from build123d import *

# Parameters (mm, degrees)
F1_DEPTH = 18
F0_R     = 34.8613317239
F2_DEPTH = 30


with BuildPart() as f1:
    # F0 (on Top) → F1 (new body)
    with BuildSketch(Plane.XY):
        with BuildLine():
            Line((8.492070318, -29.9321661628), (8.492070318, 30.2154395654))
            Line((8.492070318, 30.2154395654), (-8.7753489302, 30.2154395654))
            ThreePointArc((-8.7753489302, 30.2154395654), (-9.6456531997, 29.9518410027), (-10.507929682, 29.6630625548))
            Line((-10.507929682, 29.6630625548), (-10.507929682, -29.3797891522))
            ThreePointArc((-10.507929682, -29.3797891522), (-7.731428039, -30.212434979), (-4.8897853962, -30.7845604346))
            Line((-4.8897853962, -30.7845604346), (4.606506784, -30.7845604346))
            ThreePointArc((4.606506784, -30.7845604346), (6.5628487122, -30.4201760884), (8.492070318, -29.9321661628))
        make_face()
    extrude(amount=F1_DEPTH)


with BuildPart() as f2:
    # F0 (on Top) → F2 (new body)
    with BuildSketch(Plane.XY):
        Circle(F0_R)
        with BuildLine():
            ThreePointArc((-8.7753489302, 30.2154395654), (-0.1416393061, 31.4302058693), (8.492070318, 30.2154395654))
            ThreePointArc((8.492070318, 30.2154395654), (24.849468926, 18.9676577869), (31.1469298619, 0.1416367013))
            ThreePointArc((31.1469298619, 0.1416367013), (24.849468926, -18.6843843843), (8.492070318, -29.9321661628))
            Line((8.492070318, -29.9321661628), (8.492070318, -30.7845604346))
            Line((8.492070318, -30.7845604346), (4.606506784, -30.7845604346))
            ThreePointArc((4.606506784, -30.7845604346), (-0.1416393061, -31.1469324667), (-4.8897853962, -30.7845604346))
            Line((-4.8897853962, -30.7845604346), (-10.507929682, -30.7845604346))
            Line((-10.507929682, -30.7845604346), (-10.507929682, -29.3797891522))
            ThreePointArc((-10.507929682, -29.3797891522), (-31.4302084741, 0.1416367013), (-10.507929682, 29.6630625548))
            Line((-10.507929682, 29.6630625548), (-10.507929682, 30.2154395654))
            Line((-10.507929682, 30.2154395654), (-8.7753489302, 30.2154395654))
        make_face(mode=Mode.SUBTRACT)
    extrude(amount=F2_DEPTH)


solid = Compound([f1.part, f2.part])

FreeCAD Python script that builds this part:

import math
import FreeCAD as App
import Part
import Sketcher

V = App.Vector

doc = App.newDocument("Part")
body = doc.addObject("PartDesign::Body", "Body")

# Sketch on XY plane
sketch1 = body.newObject("Sketcher::SketchObject", "Sketch")
sketch1.AttachmentSupport = (doc.getObject("XY_Plane"), [""])
sketch1.MapMode = "FlatFace"
sketch1.addGeometry([
    Part.LineSegment(V(8.5, -29.9, 0), V(8.5, 30.2, 0)),  # 0
    Part.LineSegment(V(8.5, 30.2, 0), V(-8.8, 30.2, 0)),  # 1
    Part.ArcOfCircle(Part.Circle(V(-0.1, 0.1, 0), V(0, 0, 1), 31.3), math.radians(106.02), math.radians(109.35)),  # 2
    Part.LineSegment(V(-10.5, 29.7, 0), V(-10.5, -29.4, 0)),  # 3
    Part.ArcOfCircle(Part.Circle(V(-0.1, 0.1, 0), V(0, 0, 1), 31.3), math.radians(-109.35), math.radians(-98.73)),  # 4
    Part.LineSegment(V(-4.9, -30.8, 0), V(4.6, -30.8, 0)),  # 5
    Part.ArcOfCircle(Part.Circle(V(-0.1, 0.1, 0), V(0, 0, 1), 31.3), math.radians(-81.27), math.radians(-73.98)),  # 6
], False)
sketch1.addConstraint([
    Sketcher.Constraint("Coincident", 0, 2, 1, 1),
    Sketcher.Constraint("Coincident", 1, 2, 2, 1),
    Sketcher.Constraint("Coincident", 2, 2, 3, 1),
    Sketcher.Constraint("Coincident", 3, 2, 4, 1),
    Sketcher.Constraint("Coincident", 4, 2, 5, 1),
    Sketcher.Constraint("Coincident", 5, 2, 6, 1),
    Sketcher.Constraint("Coincident", 6, 2, 0, 1),
    Sketcher.Constraint("Vertical", 0),
    Sketcher.Constraint("Horizontal", 1),
    Sketcher.Constraint("Vertical", 3),
    Sketcher.Constraint("Horizontal", 5),
    Sketcher.Constraint("Coincident", 4, 3, 2, 3),
    Sketcher.Constraint("Coincident", 6, 3, 2, 3),
    Sketcher.Constraint("Equal", 2, 4),
    Sketcher.Constraint("Equal", 4, 6),
    Sketcher.Constraint("DistanceX", 2, 2, 0, 2, 19.0),
    Sketcher.Constraint("Radius", 2, 31.288569),
    Sketcher.Constraint("DistanceX", 1, 2, 1, 1, 17.267419),
    Sketcher.Constraint("DistanceY", 3, 2, 3, 1, 59.042852),
    Sketcher.Constraint("DistanceX", 5, 1, 5, 2, 9.496292),
    Sketcher.Constraint("DistanceX", 2, 3, -1, 1, 0.141639),
    Sketcher.Constraint("DistanceY", -1, 1, 0, 2, 30.21544),
])
pad1 = body.newObject("PartDesign::Pad", "Pad")
pad1.Profile = sketch1
pad1.Length = 18
body2 = doc.addObject("PartDesign::Body", "Body001")

# Sketch on XY plane
sketch2 = body2.newObject("Sketcher::SketchObject", "Sketch001")
sketch2.AttachmentSupport = (doc.getObject("XY_Plane001"), [""])
sketch2.MapMode = "FlatFace"
sketch2.addGeometry([
    Part.Circle(V(0, 0, 0), V(0, 0, 1), 34.9),  # 0
    Part.LineSegment(V(-10.5, 30.2, 0), V(-8.8, 30.2, 0)),  # 1
    Part.ArcOfCircle(Part.Circle(V(-0.1, 0.1, 0), V(0, 0, 1), 31.3), math.radians(74), math.radians(106)),  # 2
    Part.ArcOfCircle(Part.Circle(V(-0.1, 0.1, 0), V(0, 0, 1), 31.3), math.radians(0), math.radians(74)),  # 3
    Part.ArcOfCircle(Part.Circle(V(-0.1, 0.1, 0), V(0, 0, 1), 31.3), math.radians(-74), math.radians(0)),  # 4
    Part.LineSegment(V(8.5, -29.9, 0), V(8.5, -30.8, 0)),  # 5
    Part.LineSegment(V(8.5, -30.8, 0), V(4.6, -30.8, 0)),  # 6
    Part.ArcOfCircle(Part.Circle(V(-0.1, 0.1, 0), V(0, 0, 1), 31.3), math.radians(-98.73), math.radians(-81.27)),  # 7
    Part.LineSegment(V(-4.9, -30.8, 0), V(-10.5, -30.8, 0)),  # 8
    Part.LineSegment(V(-10.5, -30.8, 0), V(-10.5, -29.4, 0)),  # 9
    Part.ArcOfCircle(Part.Circle(V(-0.1, 0.1, 0), V(0, 0, 1), 31.3), math.radians(109), math.radians(251)),  # 10
    Part.LineSegment(V(-10.5, 29.7, 0), V(-10.5, 30.2, 0)),  # 11
], False)
sketch2.addConstraint([
    Sketcher.Constraint("Coincident", 1, 2, 2, 2),
    Sketcher.Constraint("Tangent", 2, 1, 3, 2),
    Sketcher.Constraint("Tangent", 3, 1, 4, 2),
    Sketcher.Constraint("Coincident", 4, 1, 5, 1),
    Sketcher.Constraint("Coincident", 5, 2, 6, 1),
    Sketcher.Constraint("Coincident", 6, 2, 7, 2),
    Sketcher.Constraint("Coincident", 7, 1, 8, 1),
    Sketcher.Constraint("Coincident", 8, 2, 9, 1),
    Sketcher.Constraint("Coincident", 9, 2, 10, 2),
    Sketcher.Constraint("Coincident", 10, 1, 11, 1),
    Sketcher.Constraint("Coincident", 11, 2, 1, 1),
    Sketcher.Constraint("Horizontal", 1),
    Sketcher.Constraint("Vertical", 5),
    Sketcher.Constraint("Horizontal", 6),
    Sketcher.Constraint("Horizontal", 8),
    Sketcher.Constraint("Vertical", 9),
    Sketcher.Constraint("Vertical", 11),
    Sketcher.Constraint("Coincident", 0, 3, -1, 1),
    Sketcher.Constraint("Coincident", 4, 3, 2, 3),
    Sketcher.Constraint("Coincident", 7, 3, 2, 3),
    Sketcher.Constraint("Coincident", 10, 3, 2, 3),
    Sketcher.Constraint("Equal", 4, 7),
    Sketcher.Constraint("Equal", 7, 10),
    Sketcher.Constraint("Horizontal", 1, 2, 2, 1),
    Sketcher.Constraint("Horizontal", 10, 3, 3, 1),
    Sketcher.Constraint("Horizontal", 6, 2, 7, 1),
    Sketcher.Constraint("Vertical", 2, 1, 4, 1),
    Sketcher.Constraint("Vertical", 9, 2, 10, 1),
    Sketcher.Constraint("DistanceX", 8, 2, 5, 2, 19.0),
    Sketcher.Constraint("Radius", 2, 31.288569),
    Sketcher.Constraint("Diameter", 0, 69.722663),
    Sketcher.Constraint("DistanceX", 1, 1, 1, 2, 1.732581),
    Sketcher.Constraint("DistanceY", 9, 1, 9, 2, 1.404771),
    Sketcher.Constraint("DistanceX", 2, 3, -1, 1, 0.141639),
    Sketcher.Constraint("DistanceY", -1, 1, 1, 2, 30.21544),
])
pad2 = body2.newObject("PartDesign::Pad", "Pad001")
pad2.Profile = sketch2
pad2.Length = 30

doc.recompute()
